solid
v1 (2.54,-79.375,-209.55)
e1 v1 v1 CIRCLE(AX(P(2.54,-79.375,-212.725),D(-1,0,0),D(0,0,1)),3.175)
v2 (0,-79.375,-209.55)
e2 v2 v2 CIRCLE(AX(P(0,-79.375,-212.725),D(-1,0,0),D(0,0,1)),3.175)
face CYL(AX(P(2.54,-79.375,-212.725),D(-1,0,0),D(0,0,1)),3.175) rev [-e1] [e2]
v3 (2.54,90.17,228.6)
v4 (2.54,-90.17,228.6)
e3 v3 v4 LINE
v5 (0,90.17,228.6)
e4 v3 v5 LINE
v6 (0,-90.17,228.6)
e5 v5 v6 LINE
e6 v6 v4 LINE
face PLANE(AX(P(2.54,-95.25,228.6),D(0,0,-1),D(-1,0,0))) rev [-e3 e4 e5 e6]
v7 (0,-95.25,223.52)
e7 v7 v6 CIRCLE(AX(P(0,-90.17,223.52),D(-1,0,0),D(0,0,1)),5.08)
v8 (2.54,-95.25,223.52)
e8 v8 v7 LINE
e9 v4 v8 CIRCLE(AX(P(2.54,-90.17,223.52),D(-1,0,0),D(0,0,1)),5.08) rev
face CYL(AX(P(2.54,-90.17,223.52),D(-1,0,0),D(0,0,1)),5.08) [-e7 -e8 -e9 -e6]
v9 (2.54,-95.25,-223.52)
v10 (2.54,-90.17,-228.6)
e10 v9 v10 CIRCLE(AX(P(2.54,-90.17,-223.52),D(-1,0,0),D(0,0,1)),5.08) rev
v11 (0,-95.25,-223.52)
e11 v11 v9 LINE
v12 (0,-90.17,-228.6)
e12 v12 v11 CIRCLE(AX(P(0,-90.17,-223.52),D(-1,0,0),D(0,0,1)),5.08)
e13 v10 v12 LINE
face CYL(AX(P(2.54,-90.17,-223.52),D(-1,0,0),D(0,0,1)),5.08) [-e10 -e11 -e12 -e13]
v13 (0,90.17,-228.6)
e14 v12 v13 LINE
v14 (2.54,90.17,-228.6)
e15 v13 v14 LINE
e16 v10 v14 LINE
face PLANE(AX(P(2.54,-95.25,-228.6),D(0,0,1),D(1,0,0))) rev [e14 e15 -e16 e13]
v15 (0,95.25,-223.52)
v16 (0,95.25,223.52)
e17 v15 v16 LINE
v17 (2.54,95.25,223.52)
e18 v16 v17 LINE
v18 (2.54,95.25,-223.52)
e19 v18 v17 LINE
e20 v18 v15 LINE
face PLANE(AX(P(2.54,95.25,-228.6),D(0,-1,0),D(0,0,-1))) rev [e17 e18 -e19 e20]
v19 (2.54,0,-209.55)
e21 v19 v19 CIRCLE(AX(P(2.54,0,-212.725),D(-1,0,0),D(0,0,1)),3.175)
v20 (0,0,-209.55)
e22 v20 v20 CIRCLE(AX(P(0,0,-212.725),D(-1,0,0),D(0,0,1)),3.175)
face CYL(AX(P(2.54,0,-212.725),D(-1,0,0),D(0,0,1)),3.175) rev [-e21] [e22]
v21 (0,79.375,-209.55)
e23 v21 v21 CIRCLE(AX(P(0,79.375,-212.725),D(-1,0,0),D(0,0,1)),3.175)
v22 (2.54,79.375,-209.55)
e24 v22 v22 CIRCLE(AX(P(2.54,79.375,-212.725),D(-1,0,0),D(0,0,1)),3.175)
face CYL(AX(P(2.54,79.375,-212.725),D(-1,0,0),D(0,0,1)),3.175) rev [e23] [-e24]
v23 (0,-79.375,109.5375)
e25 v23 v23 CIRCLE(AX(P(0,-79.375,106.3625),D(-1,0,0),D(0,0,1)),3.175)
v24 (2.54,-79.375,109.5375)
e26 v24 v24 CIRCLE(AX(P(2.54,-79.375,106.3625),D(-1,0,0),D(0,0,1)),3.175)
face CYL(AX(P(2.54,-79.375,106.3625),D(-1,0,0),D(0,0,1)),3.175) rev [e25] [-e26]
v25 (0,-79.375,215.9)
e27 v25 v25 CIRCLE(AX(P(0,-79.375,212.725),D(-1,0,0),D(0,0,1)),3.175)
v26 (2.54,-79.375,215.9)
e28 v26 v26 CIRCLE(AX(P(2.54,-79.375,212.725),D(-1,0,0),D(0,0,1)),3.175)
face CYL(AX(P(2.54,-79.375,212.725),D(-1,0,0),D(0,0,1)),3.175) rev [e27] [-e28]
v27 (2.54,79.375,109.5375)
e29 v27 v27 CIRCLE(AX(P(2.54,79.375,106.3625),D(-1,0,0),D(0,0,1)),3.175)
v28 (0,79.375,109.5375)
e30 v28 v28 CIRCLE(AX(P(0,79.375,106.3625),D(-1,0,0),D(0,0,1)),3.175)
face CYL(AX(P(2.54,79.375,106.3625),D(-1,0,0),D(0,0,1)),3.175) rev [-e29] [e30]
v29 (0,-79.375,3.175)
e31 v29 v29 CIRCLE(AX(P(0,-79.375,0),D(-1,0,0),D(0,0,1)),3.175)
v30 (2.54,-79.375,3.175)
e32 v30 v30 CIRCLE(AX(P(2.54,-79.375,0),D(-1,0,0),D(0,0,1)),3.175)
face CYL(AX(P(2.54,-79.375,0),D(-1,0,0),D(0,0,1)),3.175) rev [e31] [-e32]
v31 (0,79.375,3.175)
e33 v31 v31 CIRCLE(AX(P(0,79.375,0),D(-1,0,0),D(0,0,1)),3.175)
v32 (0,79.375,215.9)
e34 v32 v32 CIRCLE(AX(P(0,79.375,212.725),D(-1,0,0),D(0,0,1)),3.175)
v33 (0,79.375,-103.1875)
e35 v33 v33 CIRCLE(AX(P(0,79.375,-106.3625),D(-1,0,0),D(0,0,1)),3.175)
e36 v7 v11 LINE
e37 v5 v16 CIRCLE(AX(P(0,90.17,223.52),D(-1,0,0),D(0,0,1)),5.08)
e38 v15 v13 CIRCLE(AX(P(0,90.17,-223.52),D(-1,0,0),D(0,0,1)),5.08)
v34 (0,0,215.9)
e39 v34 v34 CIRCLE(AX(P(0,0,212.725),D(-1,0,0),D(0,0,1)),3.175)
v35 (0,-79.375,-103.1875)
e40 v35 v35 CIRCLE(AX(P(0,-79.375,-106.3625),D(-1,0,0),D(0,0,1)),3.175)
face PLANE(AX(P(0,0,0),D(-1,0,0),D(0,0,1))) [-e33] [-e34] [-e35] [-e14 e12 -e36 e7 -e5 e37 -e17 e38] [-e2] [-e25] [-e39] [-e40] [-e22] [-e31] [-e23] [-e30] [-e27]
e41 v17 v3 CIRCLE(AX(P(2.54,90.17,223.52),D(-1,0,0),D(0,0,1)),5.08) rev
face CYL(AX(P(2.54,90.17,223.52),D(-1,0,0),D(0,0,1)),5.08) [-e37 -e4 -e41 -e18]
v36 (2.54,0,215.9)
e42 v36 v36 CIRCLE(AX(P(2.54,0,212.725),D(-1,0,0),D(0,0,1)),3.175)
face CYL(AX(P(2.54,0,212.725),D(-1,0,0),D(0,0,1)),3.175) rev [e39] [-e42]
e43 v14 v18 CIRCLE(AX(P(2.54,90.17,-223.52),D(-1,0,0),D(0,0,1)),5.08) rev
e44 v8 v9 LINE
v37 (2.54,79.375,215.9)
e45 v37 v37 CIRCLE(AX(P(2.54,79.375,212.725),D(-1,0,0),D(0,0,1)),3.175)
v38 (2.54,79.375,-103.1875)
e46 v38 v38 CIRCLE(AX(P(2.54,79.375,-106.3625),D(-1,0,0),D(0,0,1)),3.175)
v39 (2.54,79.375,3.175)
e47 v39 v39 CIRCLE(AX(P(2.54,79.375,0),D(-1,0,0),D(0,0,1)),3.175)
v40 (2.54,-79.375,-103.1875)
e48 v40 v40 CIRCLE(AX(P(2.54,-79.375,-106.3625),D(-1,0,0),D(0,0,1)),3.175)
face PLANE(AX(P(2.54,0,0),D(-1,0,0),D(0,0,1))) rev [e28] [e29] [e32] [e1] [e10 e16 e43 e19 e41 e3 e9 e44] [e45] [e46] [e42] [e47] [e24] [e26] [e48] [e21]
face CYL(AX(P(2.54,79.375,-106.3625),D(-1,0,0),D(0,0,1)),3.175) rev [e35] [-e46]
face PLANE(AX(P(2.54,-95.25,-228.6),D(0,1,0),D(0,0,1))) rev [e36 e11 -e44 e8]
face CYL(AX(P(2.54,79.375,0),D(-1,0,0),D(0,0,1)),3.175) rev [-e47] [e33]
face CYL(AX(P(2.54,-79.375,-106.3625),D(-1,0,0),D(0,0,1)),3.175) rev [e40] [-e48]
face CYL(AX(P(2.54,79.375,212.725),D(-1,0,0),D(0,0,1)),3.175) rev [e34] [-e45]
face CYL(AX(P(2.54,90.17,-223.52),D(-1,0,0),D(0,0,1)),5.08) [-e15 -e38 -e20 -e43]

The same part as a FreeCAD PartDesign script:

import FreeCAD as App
import Part
import Sketcher
from FreeCAD import Vector
Q = App.Units.Quantity


def edges_at(feature, points):
    """Names of the edges that pass closest to the given points."""
    edges = feature.Shape.Edges
    near = lambda p: min(range(len(edges)), key=lambda i: edges[i].distToShape(Part.Vertex(*p))[0])
    return sorted({f"Edge{near(p) + 1}" for p in points})


def add_polygon(sketch, points):
    """Adds a closed chain of lines whose ends are joined by coincident constraints."""
    first, n = sketch.GeometryCount, len(points)
    for a, b in zip(points, points[1:] + points[:1]):
        sketch.addGeometry(Part.LineSegment(App.Vector(*a, 0), App.Vector(*b, 0)), False)
    for i in range(n):
        sketch.addConstraint(Sketcher.Constraint("Coincident", first + i, 2, first + (i + 1) % n, 1))

doc = App.newDocument("Part")
params = doc.addObject("Spreadsheet::Sheet", "Params")
for row, (alias, value) in enumerate([
    ("sketch1_height", "18 in"),
    ("sketch1_width", "7.5 in"),
    ("pad1_length", "0.1 in"),
    ("fillet_radius", "0.2 in"),
    ("sketch2_diameter", "0.25 in"),
], start=1):
    params.set(f"A{row}", alias)
    params.set(f"B{row}", "=" + value)
    params.setAlias(f"B{row}", alias)

body = doc.addObject("PartDesign::Body", "Body")

# Sketch on YZ plane
sketch1 = body.newObject("Sketcher::SketchObject", "Sketch")
sketch1.AttachmentSupport = (doc.getObject("YZ_Plane"), [""])
sketch1.MapMode = "FlatFace"
add_polygon(sketch1, [(-95.25, 228.6), (-95.25, -228.6), (95.25, -228.6), (95.25, 228.6)])  # lines 0-3
sketch1.addConstraint([
    Sketcher.Constraint("Vertical", 0),
    Sketcher.Constraint("Horizontal", 1),
    Sketcher.Constraint("Vertical", 2),
    Sketcher.Constraint("Horizontal", 3),
    Sketcher.Constraint("Symmetric", 0, 2, 2, 2, -1, 1),
    Sketcher.Constraint("DistanceY", 0, 2, 0, 1, Q("18 in")),
    Sketcher.Constraint("DistanceX", 1, 1, 1, 2, Q("7.5 in")),
])
sketch1.setExpression("Constraints[9]", "Params.sketch1_height")
sketch1.setExpression("Constraints[10]", "Params.sketch1_width")
pad1 = body.newObject("PartDesign::Pad", "Pad")
pad1.Profile = sketch1
pad1.setExpression("Length", "Params.pad1_length")
doc.recompute()

fillet = body.newObject("PartDesign::Fillet", "Fillet")
fillet.Base = (pad1, edges_at(pad1, [
    (1.27, 95.25, -228.6),
    (1.27, -95.25, -228.6),
    (1.27, -95.25, 228.6),
    (1.27, 95.25, 228.6),
]))
fillet.setExpression("Radius", "Params.fillet_radius")

# Sketch on YZ plane
sketch2 = body.newObject("Sketcher::SketchObject", "Sketch001")
sketch2.AttachmentSupport = (doc.getObject("YZ_Plane"), [""])
sketch2.MapMode = "FlatFace"
sketch2.addGeometry([
    Part.Circle(Vector(0, -257.175, 0), Vector(0, 0, 1), 3.175),  # 0
    Part.Circle(Vector(-79.375, -106.3625, 0), Vector(0, 0, 1), 3.175),  # 1
    Part.Circle(Vector(-79.375, 0, 0), Vector(0, 0, 1), 3.175),  # 2
    Part.Circle(Vector(-79.375, 106.3625, 0), Vector(0, 0, 1), 3.175),  # 3
    Part.Circle(Vector(-79.375, 212.725, 0), Vector(0, 0, 1), 3.175),  # 4
    Part.Circle(Vector(79.375, 212.725, 0), Vector(0, 0, 1), 3.175),  # 5
    Part.Circle(Vector(0, 212.725, 0), Vector(0, 0, 1), 3.175),  # 6
    Part.Circle(Vector(-79.375, -257.175, 0), Vector(0, 0, 1), 3.175),  # 7
    Part.Circle(Vector(-79.375, -363.5375, 0), Vector(0, 0, 1), 3.175),  # 8
    Part.Circle(Vector(79.375, -257.175, 0), Vector(0, 0, 1), 3.175),  # 9
    Part.Circle(Vector(79.375, -106.3625, 0), Vector(0, 0, 1), 3.175),  # 10
    Part.Circle(Vector(79.375, -212.725, 0), Vector(0, 0, 1), 3.175),  # 11
    Part.Circle(Vector(0, -212.725, 0), Vector(0, 0, 1), 3.175),  # 12
    Part.Circle(Vector(-79.375, -212.725, 0), Vector(0, 0, 1), 3.175),  # 13
    Part.Circle(Vector(-79.375, -576.2625, 0), Vector(0, 0, 1), 3.175),  # 14
    Part.Circle(Vector(-79.375, -469.9, 0), Vector(0, 0, 1), 3.175),  # 15
    Part.Circle(Vector(79.375, 106.3625, 0), Vector(0, 0, 1), 3.175),  # 16
    Part.Circle(Vector(79.375, 0, 0), Vector(0, 0, 1), 3.175),  # 17
    Part.Circle(Vector(79.375, -682.625, 0), Vector(0, 0, 1), 3.175),  # 18
    Part.Circle(Vector(79.375, -576.2625, 0), Vector(0, 0, 1), 3.175),  # 19
    Part.Circle(Vector(-79.375, -682.625, 0), Vector(0, 0, 1), 3.175),  # 20
    Part.Circle(Vector(79.375, -469.9, 0), Vector(0, 0, 1), 3.175),  # 21
    Part.Circle(Vector(0, -682.625, 0), Vector(0, 0, 1), 3.175),  # 22
    Part.Circle(Vector(79.375, -363.5375, 0), Vector(0, 0, 1), 3.175),  # 23
    Part.Circle(Vector(-79.375, -831.85, 0), Vector(0, 0, 1), 3.175),  # 24
    Part.Circle(Vector(79.375, -831.85, 0), Vector(0, 0, 1), 3.175),  # 25
    Part.Circle(Vector(79.375, -727.075, 0), Vector(0, 0, 1), 3.175),  # 26
    Part.Circle(Vector(-79.375, -727.075, 0), Vector(0, 0, 1), 3.175),  # 27
    Part.Circle(Vector(0, -936.625, 0), Vector(0, 0, 1), 3.175),  # 28
    Part.Circle(Vector(0, -727.075, 0), Vector(0, 0, 1), 3.175),  # 29
    Part.Circle(Vector(79.375, -936.625, 0), Vector(0, 0, 1), 3.175),  # 30
    Part.Circle(Vector(-79.375, -936.625, 0), Vector(0, 0, 1), 3.175),  # 31
], False)
sketch2.addConstraint([
    Sketcher.Constraint("Equal", 0, 1),
    Sketcher.Constraint("Equal", 1, 2),
    Sketcher.Constraint("Equal", 2, 3),
    Sketcher.Constraint("Equal", 3, 4),
    Sketcher.Constraint("Equal", 4, 5),
    Sketcher.Constraint("Equal", 5, 6),
    Sketcher.Constraint("Equal", 6, 7),
    Sketcher.Constraint("Equal", 7, 8),
    Sketcher.Constraint("Equal", 8, 9),
    Sketcher.Constraint("Equal", 9, 10),
    Sketcher.Constraint("Equal", 10, 11),
    Sketcher.Constraint("Equal", 11, 12),
    Sketcher.Constraint("Equal", 12, 13),
    Sketcher.Constraint("Equal", 13, 14),
    Sketcher.Constraint("Equal", 14, 15),
    Sketcher.Constraint("Equal", 15, 16),
    Sketcher.Constraint("Equal", 16, 17),
    Sketcher.Constraint("Equal", 17, 18),
    Sketcher.Constraint("Equal", 18, 19),
    Sketcher.Constraint("Equal", 19, 20),
    Sketcher.Constraint("Equal", 20, 21),
    Sketcher.Constraint("Equal", 21, 22),
    Sketcher.Constraint("Equal", 22, 23),
    Sketcher.Constraint("Equal", 23, 24),
    Sketcher.Constraint("Equal", 24, 25),
    Sketcher.Constraint("Equal", 25, 26),
    Sketcher.Constraint("Equal", 26, 27),
    Sketcher.Constraint("Equal", 27, 28),
    Sketcher.Constraint("Equal", 28, 29),
    Sketcher.Constraint("Equal", 29, 30),
    Sketcher.Constraint("Equal", 30, 31),
    Sketcher.Constraint("Symmetric", 3, 3, 10, 3, -1, 1),
    Sketcher.Constraint("Symmetric", 4, 3, 11, 3, -1, 1),
    Sketcher.Constraint("Symmetric", 6, 3, 12, 3, -1, 1),
    Sketcher.Constraint("Symmetric", 5, 3, 13, 3, -1, 1),
    Sketcher.Constraint("Symmetric", 1, 3, 16, 3, -1, 1),
    Sketcher.Constraint("Symmetric", 2, 3, 17, 3, -1, 1),
    Sketcher.Constraint("Symmetric", 4, 3, 5, 3, -2),
    Sketcher.Constraint("Symmetric", 7, 3, 9, 3, -2),
    Sketcher.Constraint("Symmetric", 1, 3, 10, 3, -2),
    Sketcher.Constraint("Symmetric", 14, 3, 19, 3, -2),
    Sketcher.Constraint("Symmetric", 18, 3, 20, 3, -2),
    Sketcher.Constraint("Symmetric", 15, 3, 21, 3, -2),
    Sketcher.Constraint("Symmetric", 8, 3, 23, 3, -2),
    Sketcher.Constraint("Symmetric", 24, 3, 25, 3, -2),
    Sketcher.Constraint("Symmetric", 26, 3, 27, 3, -2),
    Sketcher.Constraint("Symmetric", 30, 3, 31, 3, -2),
    Sketcher.Constraint("PointOnObject", 0, 3, -2),
    Sketcher.Constraint("PointOnObject", 2, 3, -1),
    Sketcher.Constraint("PointOnObject", 6, 3, -2),
    Sketcher.Constraint("PointOnObject", 22, 3, -2),
    Sketcher.Constraint("PointOnObject", 28, 3, -2),
    Sketcher.Constraint("PointOnObject", 29, 3, -2),
    Sketcher.Constraint("Horizontal", 5, 3, 6, 3),
    Sketcher.Constraint("Horizontal", 0, 3, 7, 3),
    Sketcher.Constraint("Horizontal", 20, 3, 22, 3),
    Sketcher.Constraint("Horizontal", 27, 3, 29, 3),
    Sketcher.Constraint("Horizontal", 28, 3, 30, 3),
    Sketcher.Constraint("Vertical", 1, 3, 2, 3),
    Sketcher.Constraint("Vertical", 3, 3, 4, 3),
    Sketcher.Constraint("Vertical", 4, 3, 7, 3),
    Sketcher.Constraint("Vertical", 7, 3, 8, 3),
    Sketcher.Constraint("Vertical", 13, 3, 14, 3),
    Sketcher.Constraint("Vertical", 14, 3, 15, 3),
    Sketcher.Constraint("Vertical", 17, 3, 18, 3),
    Sketcher.Constraint("Vertical", 20, 3, 24, 3),
    Sketcher.Constraint("Vertical", 25, 3, 26, 3),
    Sketcher.Constraint("Vertical", 26, 3, 30, 3),
    Sketcher.Constraint("Diameter", 0, Q("0.25 in")),
    Sketcher.Constraint("DistanceY", 28, 3, 22, 3, Q("10 in")),
    Sketcher.Constraint("DistanceY", 15, 3, -1, 1, Q("18.5 in")),
    Sketcher.Constraint("DistanceY", 0, 3, 4, 3, Q("18.5 in")),
    Sketcher.Constraint("DistanceY", 8, 3, 3, 3, Q("18.5 in")),
    Sketcher.Constraint("DistanceY", 24, 3, -1, 1, Q("32.75 in")),
    Sketcher.Constraint("DistanceX", 4, 3, 5, 3, Q("6.25 in")),
    Sketcher.Constraint("DistanceY", 9, 3, 11, 3, Q("1.75 in")),
    Sketcher.Constraint("DistanceY", 18, 3, 9, 3, Q("16.75 in")),
    Sketcher.Constraint("DistanceY", 26, 3, 18, 3, Q("1.75 in")),
    Sketcher.Constraint("DistanceY", 1, 3, -1, 1, Q("4.1875 in")),
    Sketcher.Constraint("DistanceY", 14, 3, -1, 1, Q("22.6875 in")),
])
sketch2.setExpression("Constraints[68]", "Params.sketch2_diameter")
pocket1 = body.newObject("PartDesign::Pocket", "Pocket")
pocket1.Profile = sketch2
pocket1.Type = "ThroughAll"
pocket1.Midplane = True

doc.recompute()
